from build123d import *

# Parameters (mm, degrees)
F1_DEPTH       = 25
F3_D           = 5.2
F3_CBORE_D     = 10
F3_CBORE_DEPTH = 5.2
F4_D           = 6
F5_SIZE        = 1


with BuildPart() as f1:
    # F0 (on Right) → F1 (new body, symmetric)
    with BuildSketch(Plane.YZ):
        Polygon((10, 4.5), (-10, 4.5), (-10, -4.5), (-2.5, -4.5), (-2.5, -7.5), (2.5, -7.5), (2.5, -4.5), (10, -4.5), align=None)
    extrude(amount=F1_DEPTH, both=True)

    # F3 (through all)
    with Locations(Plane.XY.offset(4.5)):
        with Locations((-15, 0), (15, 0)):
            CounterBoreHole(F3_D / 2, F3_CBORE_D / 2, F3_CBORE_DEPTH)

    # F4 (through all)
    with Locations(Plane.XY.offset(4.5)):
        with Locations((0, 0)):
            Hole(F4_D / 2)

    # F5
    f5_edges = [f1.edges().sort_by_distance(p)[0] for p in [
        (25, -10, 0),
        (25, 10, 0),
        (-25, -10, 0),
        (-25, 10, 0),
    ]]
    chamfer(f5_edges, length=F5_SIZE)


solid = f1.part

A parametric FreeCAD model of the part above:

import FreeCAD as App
import Part
import Sketcher
from FreeCAD import Vector


def edges_at(feature, points):
    """Names of the edges that pass closest to the given points."""
    edges = feature.Shape.Edges
    near = lambda p: min(range(len(edges)), key=lambda i: edges[i].distToShape(Part.Vertex(*p))[0])
    return sorted({f"Edge{near(p) + 1}" for p in points})


def add_polygon(sketch, points):
    """Adds a closed chain of lines whose ends are joined by coincident constraints."""
    first, n = sketch.GeometryCount, len(points)
    for a, b in zip(points, points[1:] + points[:1]):
        sketch.addGeometry(Part.LineSegment(App.Vector(*a, 0), App.Vector(*b, 0)), False)
    for i in range(n):
        sketch.addConstraint(Sketcher.Constraint("Coincident", first + i, 2, first + (i + 1) % n, 1))

doc = App.newDocument("Part")
params = doc.addObject("Spreadsheet::Sheet", "Params")
for row, (alias, value) in enumerate([
    ("sketch1_width", "20 mm"),
    ("sketch1_width2", "5 mm"),
    ("sketch1_height", "9 mm"),
    ("sketch1_height2", "3 mm"),
    ("pad1_length", "50 mm"),
    ("sketch2_diameter", "5.2 mm"),
    ("hole_diameter", "5.2 mm"),
    ("hole_cbore_diameter", "10 mm"),
    ("hole_cbore_depth", "5.2 mm"),
    ("sketch3_diameter", "6 mm"),
    ("hole2_diameter", "6 mm"),
    ("chamfer_size", "1 mm"),
], start=1):
    params.set(f"A{row}", alias)
    params.set(f"B{row}", "=" + value)
    params.setAlias(f"B{row}", alias)

body = doc.addObject("PartDesign::Body", "Body")

# Sketch on YZ plane
sketch1 = body.newObject("Sketcher::SketchObject", "Sketch")
sketch1.AttachmentSupport = (doc.getObject("YZ_Plane"), [""])
sketch1.MapMode = "FlatFace"
add_polygon(sketch1, [(10, 4.5), (-10, 4.5), (-10, -4.5), (-2.5, -4.5), (-2.5, -7.5), (2.5, -7.5), (2.5, -4.5), (10, -4.5)])  # lines 0-7
sketch1.addConstraint([
    Sketcher.Constraint("Horizontal", 0),
    Sketcher.Constraint("Vertical", 1),
    Sketcher.Constraint("Horizontal", 2),
    Sketcher.Constraint("Vertical", 3),
    Sketcher.Constraint("Horizontal", 4),
    Sketcher.Constraint("Vertical", 5),
    Sketcher.Constraint("Horizontal", 6),
    Sketcher.Constraint("Vertical", 7),
    Sketcher.Constraint("Symmetric", 0, 2, 6, 2, -1, 1),
    Sketcher.Constraint("Symmetric", 2, 2, 5, 2, -2),
    Sketcher.Constraint("DistanceX", 0, 2, 0, 1, 20.0),
    Sketcher.Constraint("DistanceX", 4, 1, 4, 2, 5.0),
    Sketcher.Constraint("DistanceY", 1, 2, 1, 1, 9.0),
    Sketcher.Constraint("DistanceY", 3, 2, 3, 1, 3.0),
])
sketch1.setExpression("Constraints[18]", "Params.sketch1_width")
sketch1.setExpression("Constraints[19]", "Params.sketch1_width2")
sketch1.setExpression("Constraints[20]", "Params.sketch1_height")
sketch1.setExpression("Constraints[21]", "Params.sketch1_height2")
pad1 = body.newObject("PartDesign::Pad", "Pad")
pad1.Profile = sketch1
pad1.setExpression("Length", "Params.pad1_length")
pad1.Midplane = True

# Sketch on XY plane
sketch2 = body.newObject("Sketcher::SketchObject", "Sketch001")
sketch2.AttachmentSupport = (doc.getObject("XY_Plane"), [""])
sketch2.MapMode = "FlatFace"
sketch2.AttachmentOffset = App.Placement(Vector(0, 0, 4.5), App.Rotation())
sketch2.addGeometry([
    Part.Circle(Vector(-15, 0, 0), Vector(0, 0, 1), 2.6),
    Part.Circle(Vector(15, 0, 0), Vector(0, 0, 1), 2.6),
], False)
sketch2.addConstraint([
    Sketcher.Constraint("Equal", 0, 1),
    Sketcher.Constraint("Symmetric", 0, 3, 1, 3, -1, 1),
    Sketcher.Constraint("PointOnObject", 0, 3, -1),
    Sketcher.Constraint("Diameter", 0, 5.2),
    Sketcher.Constraint("DistanceX", 0, 3, -1, 1, 15.0),
])
sketch2.setExpression("Constraints[3]", "Params.sketch2_diameter")
doc.recompute()
hole = body.newObject("PartDesign::Hole", "Hole")
hole.Profile = sketch2
hole.ThreadType = "None"
hole.setExpression("Diameter", "Params.hole_diameter")
hole.DepthType = "ThroughAll"
hole.HoleCutType = "Counterbore"
hole.setExpression("HoleCutDiameter", "Params.hole_cbore_diameter")
hole.setExpression("HoleCutDepth", "Params.hole_cbore_depth")

# Sketch on XY plane
sketch3 = body.newObject("Sketcher::SketchObject", "Sketch002")
sketch3.AttachmentSupport = (doc.getObject("XY_Plane"), [""])
sketch3.MapMode = "FlatFace"
sketch3.AttachmentOffset = App.Placement(Vector(0, 0, 4.5), App.Rotation())
sketch3.addGeometry(Part.Circle(Vector(0, 0, 0), Vector(0, 0, 1), 3), False)
sketch3.addConstraint([
    Sketcher.Constraint("Coincident", 0, 3, -1, 1),
    Sketcher.Constraint("Diameter", 0, 6.0),
])
sketch3.setExpression("Constraints[1]", "Params.sketch3_diameter")
doc.recompute()
hole2 = body.newObject("PartDesign::Hole", "Hole001")
hole2.Profile = sketch3
hole2.ThreadType = "None"
hole2.setExpression("Diameter", "Params.hole2_diameter")
hole2.DepthType = "ThroughAll"
doc.recompute()

chamfer = body.newObject("PartDesign::Chamfer", "Chamfer")
chamfer.Base = (hole2, edges_at(hole2, [
    (25, -10, 0),
    (25, 10, 0),
    (-25, -10, 0),
    (-25, 10, 0),
]))
chamfer.setExpression("Size", "Params.chamfer_size")

doc.recompute()
